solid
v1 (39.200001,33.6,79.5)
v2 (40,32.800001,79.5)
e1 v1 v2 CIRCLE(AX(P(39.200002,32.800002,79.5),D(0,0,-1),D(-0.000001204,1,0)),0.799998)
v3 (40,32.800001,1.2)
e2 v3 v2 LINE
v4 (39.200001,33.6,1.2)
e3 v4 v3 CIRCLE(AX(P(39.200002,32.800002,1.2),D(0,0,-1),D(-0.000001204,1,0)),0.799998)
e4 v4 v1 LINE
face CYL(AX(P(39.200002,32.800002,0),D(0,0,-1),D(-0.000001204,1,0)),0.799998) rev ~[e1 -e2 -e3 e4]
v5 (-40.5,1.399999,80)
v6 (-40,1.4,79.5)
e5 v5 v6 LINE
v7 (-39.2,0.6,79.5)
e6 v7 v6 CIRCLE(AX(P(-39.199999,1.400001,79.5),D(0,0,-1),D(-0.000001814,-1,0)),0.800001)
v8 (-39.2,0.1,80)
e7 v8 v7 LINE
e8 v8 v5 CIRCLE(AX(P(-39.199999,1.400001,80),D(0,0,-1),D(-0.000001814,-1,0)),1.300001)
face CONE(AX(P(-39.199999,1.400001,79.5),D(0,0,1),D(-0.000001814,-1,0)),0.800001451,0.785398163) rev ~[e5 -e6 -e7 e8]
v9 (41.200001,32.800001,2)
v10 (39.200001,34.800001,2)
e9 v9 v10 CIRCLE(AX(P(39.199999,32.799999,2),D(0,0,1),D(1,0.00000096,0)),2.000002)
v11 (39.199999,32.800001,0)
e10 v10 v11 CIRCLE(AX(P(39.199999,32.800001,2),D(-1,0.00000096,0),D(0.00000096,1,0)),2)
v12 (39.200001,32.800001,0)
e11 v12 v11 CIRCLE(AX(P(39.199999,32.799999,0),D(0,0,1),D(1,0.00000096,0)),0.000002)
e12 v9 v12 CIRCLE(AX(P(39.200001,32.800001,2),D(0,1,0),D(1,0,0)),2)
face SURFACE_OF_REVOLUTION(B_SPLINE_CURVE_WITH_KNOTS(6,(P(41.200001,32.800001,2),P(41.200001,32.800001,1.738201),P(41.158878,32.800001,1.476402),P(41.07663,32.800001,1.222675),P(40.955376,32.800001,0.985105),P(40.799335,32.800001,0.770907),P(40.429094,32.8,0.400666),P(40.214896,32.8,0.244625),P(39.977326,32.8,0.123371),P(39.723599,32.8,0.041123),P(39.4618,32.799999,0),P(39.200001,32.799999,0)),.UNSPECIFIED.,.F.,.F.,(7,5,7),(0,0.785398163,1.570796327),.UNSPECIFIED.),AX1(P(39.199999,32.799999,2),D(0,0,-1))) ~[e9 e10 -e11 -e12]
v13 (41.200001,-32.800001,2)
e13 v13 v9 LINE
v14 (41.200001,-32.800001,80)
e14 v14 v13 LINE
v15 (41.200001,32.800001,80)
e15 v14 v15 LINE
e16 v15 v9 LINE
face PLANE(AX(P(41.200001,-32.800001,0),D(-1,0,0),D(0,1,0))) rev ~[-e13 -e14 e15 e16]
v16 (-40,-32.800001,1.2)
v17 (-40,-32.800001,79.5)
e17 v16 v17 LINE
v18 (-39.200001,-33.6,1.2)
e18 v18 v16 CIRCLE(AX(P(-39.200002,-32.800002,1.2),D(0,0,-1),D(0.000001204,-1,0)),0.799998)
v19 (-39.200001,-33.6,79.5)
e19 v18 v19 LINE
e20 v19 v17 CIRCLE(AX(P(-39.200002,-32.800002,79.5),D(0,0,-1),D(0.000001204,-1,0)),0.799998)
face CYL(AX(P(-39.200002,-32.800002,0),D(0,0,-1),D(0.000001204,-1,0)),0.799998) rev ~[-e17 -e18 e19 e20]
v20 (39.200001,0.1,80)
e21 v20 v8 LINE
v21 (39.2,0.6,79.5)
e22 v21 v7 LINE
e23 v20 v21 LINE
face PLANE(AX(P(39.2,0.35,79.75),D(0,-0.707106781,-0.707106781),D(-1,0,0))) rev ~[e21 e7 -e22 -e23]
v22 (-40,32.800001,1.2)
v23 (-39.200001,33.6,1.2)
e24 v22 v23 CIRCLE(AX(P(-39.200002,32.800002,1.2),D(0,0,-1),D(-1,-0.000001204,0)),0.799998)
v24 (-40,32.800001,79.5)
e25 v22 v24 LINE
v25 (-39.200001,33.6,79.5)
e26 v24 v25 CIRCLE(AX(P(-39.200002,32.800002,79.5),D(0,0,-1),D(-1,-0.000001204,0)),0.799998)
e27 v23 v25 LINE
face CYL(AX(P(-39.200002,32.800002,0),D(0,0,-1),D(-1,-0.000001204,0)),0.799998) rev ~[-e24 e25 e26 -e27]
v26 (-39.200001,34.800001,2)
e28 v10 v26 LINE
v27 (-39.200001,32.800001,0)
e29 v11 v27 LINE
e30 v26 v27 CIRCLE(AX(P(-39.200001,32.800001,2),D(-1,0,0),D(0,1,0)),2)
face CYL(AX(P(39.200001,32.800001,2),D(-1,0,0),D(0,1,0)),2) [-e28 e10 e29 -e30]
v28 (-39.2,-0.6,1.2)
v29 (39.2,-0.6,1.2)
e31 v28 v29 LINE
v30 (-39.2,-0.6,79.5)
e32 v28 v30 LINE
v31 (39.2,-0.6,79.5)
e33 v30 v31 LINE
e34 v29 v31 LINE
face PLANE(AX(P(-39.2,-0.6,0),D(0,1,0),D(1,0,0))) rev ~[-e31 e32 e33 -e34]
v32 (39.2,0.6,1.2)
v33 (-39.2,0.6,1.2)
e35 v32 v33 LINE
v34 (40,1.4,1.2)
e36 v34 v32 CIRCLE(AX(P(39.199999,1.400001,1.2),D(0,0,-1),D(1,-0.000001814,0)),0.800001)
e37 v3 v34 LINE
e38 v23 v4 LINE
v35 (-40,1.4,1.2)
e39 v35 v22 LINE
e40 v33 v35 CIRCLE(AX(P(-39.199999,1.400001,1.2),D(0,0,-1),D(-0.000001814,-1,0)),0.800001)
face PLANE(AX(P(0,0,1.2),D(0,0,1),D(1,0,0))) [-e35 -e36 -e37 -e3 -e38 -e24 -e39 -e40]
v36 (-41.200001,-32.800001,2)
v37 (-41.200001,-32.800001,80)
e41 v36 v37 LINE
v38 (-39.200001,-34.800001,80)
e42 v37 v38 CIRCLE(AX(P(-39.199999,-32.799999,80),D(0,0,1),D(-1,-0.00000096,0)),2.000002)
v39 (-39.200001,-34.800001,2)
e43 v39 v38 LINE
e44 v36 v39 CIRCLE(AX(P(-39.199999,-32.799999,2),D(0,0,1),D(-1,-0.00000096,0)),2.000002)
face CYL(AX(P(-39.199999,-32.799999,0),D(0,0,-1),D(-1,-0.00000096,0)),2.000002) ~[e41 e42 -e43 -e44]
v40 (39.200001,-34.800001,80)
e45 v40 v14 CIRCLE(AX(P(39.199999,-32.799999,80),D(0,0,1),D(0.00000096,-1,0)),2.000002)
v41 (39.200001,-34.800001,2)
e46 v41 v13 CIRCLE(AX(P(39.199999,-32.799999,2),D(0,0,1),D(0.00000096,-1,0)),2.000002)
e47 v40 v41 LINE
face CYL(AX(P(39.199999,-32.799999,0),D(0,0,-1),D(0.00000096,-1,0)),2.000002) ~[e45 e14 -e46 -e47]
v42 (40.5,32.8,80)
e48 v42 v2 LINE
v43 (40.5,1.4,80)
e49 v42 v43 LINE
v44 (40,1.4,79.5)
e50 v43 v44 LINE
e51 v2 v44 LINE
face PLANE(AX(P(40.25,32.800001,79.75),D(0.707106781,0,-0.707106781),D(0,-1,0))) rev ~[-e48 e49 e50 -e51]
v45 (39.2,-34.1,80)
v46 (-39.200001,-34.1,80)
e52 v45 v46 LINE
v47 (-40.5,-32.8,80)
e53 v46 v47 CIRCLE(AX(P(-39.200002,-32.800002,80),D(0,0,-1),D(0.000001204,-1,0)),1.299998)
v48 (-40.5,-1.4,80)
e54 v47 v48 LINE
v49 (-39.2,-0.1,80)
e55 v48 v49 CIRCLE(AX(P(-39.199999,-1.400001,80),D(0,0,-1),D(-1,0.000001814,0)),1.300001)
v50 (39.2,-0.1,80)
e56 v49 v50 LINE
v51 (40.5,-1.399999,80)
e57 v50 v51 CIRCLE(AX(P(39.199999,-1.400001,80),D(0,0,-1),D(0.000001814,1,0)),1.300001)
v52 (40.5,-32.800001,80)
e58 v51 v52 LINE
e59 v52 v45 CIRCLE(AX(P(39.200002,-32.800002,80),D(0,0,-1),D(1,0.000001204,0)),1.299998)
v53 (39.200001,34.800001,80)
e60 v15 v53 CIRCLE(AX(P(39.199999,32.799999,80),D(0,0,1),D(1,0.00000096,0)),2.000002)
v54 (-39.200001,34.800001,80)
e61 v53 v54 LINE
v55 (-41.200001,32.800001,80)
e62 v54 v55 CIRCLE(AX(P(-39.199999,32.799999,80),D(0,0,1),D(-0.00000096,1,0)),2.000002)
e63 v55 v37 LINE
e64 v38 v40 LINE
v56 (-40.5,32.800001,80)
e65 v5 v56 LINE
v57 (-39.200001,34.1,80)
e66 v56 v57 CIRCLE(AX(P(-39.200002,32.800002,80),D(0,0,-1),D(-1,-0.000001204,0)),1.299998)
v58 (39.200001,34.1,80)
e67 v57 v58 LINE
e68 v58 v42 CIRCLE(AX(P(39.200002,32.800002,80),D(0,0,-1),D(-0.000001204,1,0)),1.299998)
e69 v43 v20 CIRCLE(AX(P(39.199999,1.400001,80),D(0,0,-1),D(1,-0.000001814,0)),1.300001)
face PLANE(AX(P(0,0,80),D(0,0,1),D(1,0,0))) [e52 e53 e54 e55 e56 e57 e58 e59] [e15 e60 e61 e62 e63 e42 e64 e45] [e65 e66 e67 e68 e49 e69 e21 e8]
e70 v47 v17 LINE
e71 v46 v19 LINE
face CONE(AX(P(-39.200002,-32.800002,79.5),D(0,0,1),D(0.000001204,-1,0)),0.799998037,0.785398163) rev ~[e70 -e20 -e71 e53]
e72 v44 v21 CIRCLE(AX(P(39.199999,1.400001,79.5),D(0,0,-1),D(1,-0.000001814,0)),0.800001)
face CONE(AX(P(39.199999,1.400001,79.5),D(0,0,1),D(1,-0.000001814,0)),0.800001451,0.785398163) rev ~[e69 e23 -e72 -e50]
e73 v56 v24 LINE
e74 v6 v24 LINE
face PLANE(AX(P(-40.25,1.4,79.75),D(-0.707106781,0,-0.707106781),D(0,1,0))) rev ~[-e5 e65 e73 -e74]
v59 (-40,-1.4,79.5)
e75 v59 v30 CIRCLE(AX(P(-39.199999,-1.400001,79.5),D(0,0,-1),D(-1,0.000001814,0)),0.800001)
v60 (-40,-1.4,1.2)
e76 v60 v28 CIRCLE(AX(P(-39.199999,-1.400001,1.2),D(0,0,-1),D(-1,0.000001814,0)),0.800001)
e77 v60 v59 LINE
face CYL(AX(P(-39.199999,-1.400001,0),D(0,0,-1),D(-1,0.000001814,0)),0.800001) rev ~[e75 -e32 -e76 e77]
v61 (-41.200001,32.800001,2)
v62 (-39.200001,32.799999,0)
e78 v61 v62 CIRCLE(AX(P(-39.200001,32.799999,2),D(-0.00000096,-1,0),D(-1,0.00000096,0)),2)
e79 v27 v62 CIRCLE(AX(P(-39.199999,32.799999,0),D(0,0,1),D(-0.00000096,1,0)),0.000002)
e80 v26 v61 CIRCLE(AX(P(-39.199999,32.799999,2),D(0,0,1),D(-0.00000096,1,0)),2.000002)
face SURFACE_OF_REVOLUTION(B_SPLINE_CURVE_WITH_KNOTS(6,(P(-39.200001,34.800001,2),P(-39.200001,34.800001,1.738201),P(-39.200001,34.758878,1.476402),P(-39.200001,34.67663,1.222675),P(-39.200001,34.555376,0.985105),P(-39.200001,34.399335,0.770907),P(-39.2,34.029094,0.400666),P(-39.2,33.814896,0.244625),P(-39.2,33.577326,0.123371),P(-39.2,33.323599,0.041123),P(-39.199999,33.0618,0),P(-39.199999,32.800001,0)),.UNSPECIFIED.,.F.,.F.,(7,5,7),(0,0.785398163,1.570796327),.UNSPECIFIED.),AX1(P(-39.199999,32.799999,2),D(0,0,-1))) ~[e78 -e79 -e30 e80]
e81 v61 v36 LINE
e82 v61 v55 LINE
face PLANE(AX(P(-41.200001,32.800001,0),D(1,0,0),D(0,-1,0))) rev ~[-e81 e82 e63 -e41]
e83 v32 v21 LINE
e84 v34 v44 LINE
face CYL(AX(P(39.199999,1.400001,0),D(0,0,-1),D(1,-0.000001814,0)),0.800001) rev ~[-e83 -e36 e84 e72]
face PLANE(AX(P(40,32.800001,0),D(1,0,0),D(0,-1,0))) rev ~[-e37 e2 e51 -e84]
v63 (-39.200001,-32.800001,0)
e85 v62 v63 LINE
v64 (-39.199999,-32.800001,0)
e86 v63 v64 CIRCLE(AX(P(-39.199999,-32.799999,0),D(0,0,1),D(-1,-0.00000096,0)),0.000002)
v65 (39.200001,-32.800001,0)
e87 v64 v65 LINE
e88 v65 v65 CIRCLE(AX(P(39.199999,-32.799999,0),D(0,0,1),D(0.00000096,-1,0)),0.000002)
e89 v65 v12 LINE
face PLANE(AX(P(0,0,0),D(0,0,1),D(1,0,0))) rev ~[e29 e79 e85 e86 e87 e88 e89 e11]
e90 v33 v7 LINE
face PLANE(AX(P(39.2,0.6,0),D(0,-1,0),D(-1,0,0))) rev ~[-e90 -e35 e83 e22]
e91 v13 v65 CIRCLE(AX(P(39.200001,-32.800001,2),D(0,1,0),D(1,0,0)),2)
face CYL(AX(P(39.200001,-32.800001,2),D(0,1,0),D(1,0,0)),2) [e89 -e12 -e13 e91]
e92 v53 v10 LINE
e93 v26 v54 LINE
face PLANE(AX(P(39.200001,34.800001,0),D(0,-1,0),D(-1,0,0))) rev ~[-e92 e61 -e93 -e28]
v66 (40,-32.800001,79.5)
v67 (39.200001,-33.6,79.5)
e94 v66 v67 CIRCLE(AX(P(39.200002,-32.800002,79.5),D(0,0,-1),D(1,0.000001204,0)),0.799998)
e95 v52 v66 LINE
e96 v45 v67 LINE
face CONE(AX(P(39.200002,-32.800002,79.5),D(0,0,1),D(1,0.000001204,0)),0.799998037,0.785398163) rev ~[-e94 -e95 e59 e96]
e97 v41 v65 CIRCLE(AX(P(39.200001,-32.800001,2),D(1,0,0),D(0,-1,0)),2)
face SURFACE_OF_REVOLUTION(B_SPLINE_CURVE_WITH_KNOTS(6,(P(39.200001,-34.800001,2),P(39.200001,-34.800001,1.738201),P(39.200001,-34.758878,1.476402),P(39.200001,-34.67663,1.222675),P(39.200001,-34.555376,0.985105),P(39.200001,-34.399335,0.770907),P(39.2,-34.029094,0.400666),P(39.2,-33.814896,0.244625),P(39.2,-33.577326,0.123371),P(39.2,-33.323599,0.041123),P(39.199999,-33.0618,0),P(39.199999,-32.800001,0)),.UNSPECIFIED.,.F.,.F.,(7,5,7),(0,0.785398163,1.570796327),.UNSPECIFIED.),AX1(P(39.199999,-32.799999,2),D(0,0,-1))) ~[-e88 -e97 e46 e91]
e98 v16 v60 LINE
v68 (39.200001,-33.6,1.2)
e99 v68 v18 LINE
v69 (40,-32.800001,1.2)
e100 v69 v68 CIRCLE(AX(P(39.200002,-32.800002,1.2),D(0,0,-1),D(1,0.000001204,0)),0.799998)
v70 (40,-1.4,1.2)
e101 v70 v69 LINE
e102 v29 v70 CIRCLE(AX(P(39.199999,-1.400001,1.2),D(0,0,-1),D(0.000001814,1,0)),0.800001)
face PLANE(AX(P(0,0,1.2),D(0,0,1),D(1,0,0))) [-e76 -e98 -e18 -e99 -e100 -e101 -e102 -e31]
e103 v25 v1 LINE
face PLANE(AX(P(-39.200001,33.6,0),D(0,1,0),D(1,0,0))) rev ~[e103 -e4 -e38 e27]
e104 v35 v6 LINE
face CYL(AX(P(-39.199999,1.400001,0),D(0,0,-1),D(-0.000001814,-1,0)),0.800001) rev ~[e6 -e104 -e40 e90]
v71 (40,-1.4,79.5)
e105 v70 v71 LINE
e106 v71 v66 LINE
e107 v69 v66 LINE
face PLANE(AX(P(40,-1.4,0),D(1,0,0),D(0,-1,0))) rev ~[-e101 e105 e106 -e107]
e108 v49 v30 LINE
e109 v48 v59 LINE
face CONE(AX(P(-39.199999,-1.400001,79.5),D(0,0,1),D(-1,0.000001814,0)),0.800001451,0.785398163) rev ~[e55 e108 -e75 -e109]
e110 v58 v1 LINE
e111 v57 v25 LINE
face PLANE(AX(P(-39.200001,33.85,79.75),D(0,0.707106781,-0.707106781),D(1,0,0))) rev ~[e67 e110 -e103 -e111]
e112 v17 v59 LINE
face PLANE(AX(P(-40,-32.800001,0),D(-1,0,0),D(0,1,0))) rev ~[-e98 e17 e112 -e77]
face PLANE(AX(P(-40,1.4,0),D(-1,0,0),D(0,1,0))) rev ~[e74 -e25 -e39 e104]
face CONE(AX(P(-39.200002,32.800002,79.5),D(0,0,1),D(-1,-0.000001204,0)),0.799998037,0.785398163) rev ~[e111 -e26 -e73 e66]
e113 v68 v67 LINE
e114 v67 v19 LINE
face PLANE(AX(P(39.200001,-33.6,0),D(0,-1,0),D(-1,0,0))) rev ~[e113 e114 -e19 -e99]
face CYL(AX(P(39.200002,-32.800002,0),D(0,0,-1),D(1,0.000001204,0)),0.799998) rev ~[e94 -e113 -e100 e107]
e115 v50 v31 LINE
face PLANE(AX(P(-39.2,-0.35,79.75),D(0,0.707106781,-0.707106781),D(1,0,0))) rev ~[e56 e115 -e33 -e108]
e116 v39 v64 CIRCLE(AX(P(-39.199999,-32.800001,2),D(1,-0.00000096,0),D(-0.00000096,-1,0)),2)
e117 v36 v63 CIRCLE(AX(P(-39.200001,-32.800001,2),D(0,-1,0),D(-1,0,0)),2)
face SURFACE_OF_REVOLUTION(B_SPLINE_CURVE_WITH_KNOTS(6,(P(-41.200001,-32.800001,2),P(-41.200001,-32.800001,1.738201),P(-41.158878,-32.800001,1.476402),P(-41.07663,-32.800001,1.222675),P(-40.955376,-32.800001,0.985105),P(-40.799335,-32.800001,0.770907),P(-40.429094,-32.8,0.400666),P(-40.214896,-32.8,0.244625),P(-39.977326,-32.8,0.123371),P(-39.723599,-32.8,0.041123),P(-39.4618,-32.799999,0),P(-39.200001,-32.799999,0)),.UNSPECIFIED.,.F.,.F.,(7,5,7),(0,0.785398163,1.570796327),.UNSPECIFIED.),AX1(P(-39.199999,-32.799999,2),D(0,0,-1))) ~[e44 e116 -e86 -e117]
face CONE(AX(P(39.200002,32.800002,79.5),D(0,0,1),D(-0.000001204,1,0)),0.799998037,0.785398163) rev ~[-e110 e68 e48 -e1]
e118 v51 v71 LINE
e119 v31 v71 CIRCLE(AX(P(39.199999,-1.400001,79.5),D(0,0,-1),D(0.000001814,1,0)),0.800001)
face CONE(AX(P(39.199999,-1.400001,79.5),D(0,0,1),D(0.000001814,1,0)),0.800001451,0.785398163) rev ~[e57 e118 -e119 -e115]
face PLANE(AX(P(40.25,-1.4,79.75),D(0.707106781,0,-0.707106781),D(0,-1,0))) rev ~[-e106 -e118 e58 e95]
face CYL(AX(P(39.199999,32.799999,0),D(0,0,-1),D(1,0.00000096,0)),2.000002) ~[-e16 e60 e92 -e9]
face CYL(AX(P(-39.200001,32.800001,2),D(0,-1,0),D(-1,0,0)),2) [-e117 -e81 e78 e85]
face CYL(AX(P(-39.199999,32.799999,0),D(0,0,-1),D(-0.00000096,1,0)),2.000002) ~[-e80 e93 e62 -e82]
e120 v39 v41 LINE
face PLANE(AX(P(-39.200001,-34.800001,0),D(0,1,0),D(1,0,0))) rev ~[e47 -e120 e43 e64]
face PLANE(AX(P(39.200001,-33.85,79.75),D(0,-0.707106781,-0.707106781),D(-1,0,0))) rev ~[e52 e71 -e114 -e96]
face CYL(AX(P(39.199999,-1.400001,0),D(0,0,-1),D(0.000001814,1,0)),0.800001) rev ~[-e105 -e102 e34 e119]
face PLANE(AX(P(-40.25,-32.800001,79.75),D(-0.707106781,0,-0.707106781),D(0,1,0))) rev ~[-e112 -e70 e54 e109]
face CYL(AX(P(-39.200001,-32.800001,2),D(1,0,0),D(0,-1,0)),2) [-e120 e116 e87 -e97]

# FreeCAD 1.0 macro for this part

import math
import FreeCAD as App
import Part
import Sketcher
from FreeCAD import Vector


def edges_at(feature, points):
    """Names of the edges that pass closest to the given points."""
    edges = feature.Shape.Edges
    near = lambda p: min(range(len(edges)), key=lambda i: edges[i].distToShape(Part.Vertex(*p))[0])
    return sorted({f"Edge{near(p) + 1}" for p in points})

doc = App.newDocument("Part")
body = doc.addObject("PartDesign::Body", "Body")

# Sketch on XY plane
sketch1 = body.newObject("Sketcher::SketchObject", "Sketch")
sketch1.AttachmentSupport = (doc.getObject("XY_Plane"), [""])
sketch1.MapMode = "FlatFace"
sketch1.addGeometry([
    Part.LineSegment(Vector(39.2, 34.8, 0), Vector(-39.2, 34.8, 0)),  # 0
    Part.ArcOfCircle(Part.Circle(Vector(-39.2, 32.8, 0), Vector(0, 0, 1), 2), math.radians(90), math.radians(180)),  # 1
    Part.LineSegment(Vector(-41.2, 32.8, 0), Vector(-41.2, -32.8, 0)),  # 2
    Part.ArcOfCircle(Part.Circle(Vector(-39.2, -32.8, 0), Vector(0, 0, 1), 2), math.radians(-180), math.radians(-90)),  # 3
    Part.LineSegment(Vector(-39.2, -34.8, 0), Vector(39.2, -34.8, 0)),  # 4
    Part.ArcOfCircle(Part.Circle(Vector(39.2, -32.8, 0), Vector(0, 0, 1), 2), math.radians(-90), math.radians(0)),  # 5
    Part.LineSegment(Vector(41.2, -32.8, 0), Vector(41.2, 32.8, 0)),  # 6
    Part.ArcOfCircle(Part.Circle(Vector(39.2, 32.8, 0), Vector(0, 0, 1), 2), math.radians(0), math.radians(90)),  # 7
    Part.LineSegment(Vector(39.2, -33.6, 0), Vector(-39.2, -33.6, 0)),  # 8
    Part.ArcOfCircle(Part.Circle(Vector(-39.2, -32.8, 0), Vector(0, 0, 1), 0.8), math.radians(180), math.radians(270)),  # 9
    Part.LineSegment(Vector(-40, -32.8, 0), Vector(-40, -1.4, 0)),  # 10
    Part.ArcOfCircle(Part.Circle(Vector(-39.2, -1.4, 0), Vector(0, 0, 1), 0.8), math.radians(90), math.radians(180)),  # 11
    Part.LineSegment(Vector(-39.2, -0.6, 0), Vector(39.2, -0.6, 0)),  # 12
    Part.ArcOfCircle(Part.Circle(Vector(39.2, -1.4, 0), Vector(0, 0, 1), 0.8), math.radians(0), math.radians(90)),  # 13
    Part.LineSegment(Vector(40, -1.4, 0), Vector(40, -32.8, 0)),  # 14
    Part.ArcOfCircle(Part.Circle(Vector(39.2, -32.8, 0), Vector(0, 0, 1), 0.8), math.radians(-90), math.radians(0)),  # 15
    Part.LineSegment(Vector(-40, 1.4, 0), Vector(-40, 32.8, 0)),  # 16
    Part.ArcOfCircle(Part.Circle(Vector(-39.2, 32.8, 0), Vector(0, 0, 1), 0.8), math.radians(90), math.radians(180)),  # 17
    Part.LineSegment(Vector(-39.2, 33.6, 0), Vector(39.2, 33.6, 0)),  # 18
    Part.ArcOfCircle(Part.Circle(Vector(39.2, 32.8, 0), Vector(0, 0, 1), 0.8), math.radians(0), math.radians(90)),  # 19
    Part.LineSegment(Vector(40, 32.8, 0), Vector(40, 1.4, 0)),  # 20
    Part.ArcOfCircle(Part.Circle(Vector(39.2, 1.4, 0), Vector(0, 0, 1), 0.8), math.radians(-90), math.radians(0)),  # 21
    Part.LineSegment(Vector(39.2, 0.6, 0), Vector(-39.2, 0.6, 0)),  # 22
    Part.ArcOfCircle(Part.Circle(Vector(-39.2, 1.4, 0), Vector(0, 0, 1), 0.8), math.radians(-180), math.radians(-90)),  # 23
], False)
sketch1.addConstraint([
    Sketcher.Constraint("Tangent", 0, 2, 1, 1),
    Sketcher.Constraint("Tangent", 1, 2, 2, 1),
    Sketcher.Constraint("Tangent", 2, 2, 3, 1),
    Sketcher.Constraint("Tangent", 3, 2, 4, 1),
    Sketcher.Constraint("Tangent", 4, 2, 5, 1),
    Sketcher.Constraint("Tangent", 5, 2, 6, 1),
    Sketcher.Constraint("Tangent", 6, 2, 7, 1),
    Sketcher.Constraint("Tangent", 7, 2, 0, 1),
    Sketcher.Constraint("Tangent", 8, 2, 9, 2),
    Sketcher.Constraint("Tangent", 9, 1, 10, 1),
    Sketcher.Constraint("Tangent", 10, 2, 11, 2),
    Sketcher.Constraint("Tangent", 11, 1, 12, 1),
    Sketcher.Constraint("Tangent", 12, 2, 13, 2),
    Sketcher.Constraint("Tangent", 13, 1, 14, 1),
    Sketcher.Constraint("Tangent", 14, 2, 15, 2),
    Sketcher.Constraint("Tangent", 15, 1, 8, 1),
    Sketcher.Constraint("Tangent", 16, 2, 17, 2),
    Sketcher.Constraint("Tangent", 17, 1, 18, 1),
    Sketcher.Constraint("Tangent", 18, 2, 19, 2),
    Sketcher.Constraint("Tangent", 19, 1, 20, 1),
    Sketcher.Constraint("Tangent", 20, 2, 21, 2),
    Sketcher.Constraint("Tangent", 21, 1, 22, 1),
    Sketcher.Constraint("Tangent", 22, 2, 23, 2),
    Sketcher.Constraint("Tangent", 23, 1, 16, 1),
    Sketcher.Constraint("Horizontal", 0),
    Sketcher.Constraint("Vertical", 2),
    Sketcher.Constraint("Horizontal", 4),
    Sketcher.Constraint("Vertical", 6),
    Sketcher.Constraint("Horizontal", 8),
    Sketcher.Constraint("Vertical", 10),
    Sketcher.Constraint("Horizontal", 12),
    Sketcher.Constraint("Vertical", 14),
    Sketcher.Constraint("Vertical", 16),
    Sketcher.Constraint("Horizontal", 18),
    Sketcher.Constraint("Vertical", 20),
    Sketcher.Constraint("Horizontal", 22),
    Sketcher.Constraint("Coincident", 9, 3, 3, 3),
    Sketcher.Constraint("Coincident", 15, 3, 5, 3),
    Sketcher.Constraint("Coincident", 17, 3, 1, 3),
    Sketcher.Constraint("Coincident", 19, 3, 7, 3),
    Sketcher.Constraint("Equal", 1, 3),
    Sketcher.Constraint("Equal", 3, 5),
    Sketcher.Constraint("Equal", 5, 7),
    Sketcher.Constraint("Equal", 11, 13),
    Sketcher.Constraint("Equal", 15, 17),
    Sketcher.Constraint("Equal", 13, 21),
    Sketcher.Constraint("Equal", 21, 23),
    Sketcher.Constraint("Symmetric", 1, 3, 5, 3, -1, 1),
    Sketcher.Constraint("Vertical", 3, 3, 11, 3),
    Sketcher.Constraint("Equal", 14, 16),
    Sketcher.Constraint("Radius", 1, 2.000002),
    Sketcher.Constraint("Radius", 9, 0.799998),
    Sketcher.Constraint("DistanceX", 0, 2, 0, 1, 78.400002),
    Sketcher.Constraint("DistanceY", 10, 1, 10, 2, 31.400001),
    Sketcher.Constraint("DistanceY", 11, 1, 23, 3, 2.000001),
])
pad1 = body.newObject("PartDesign::Pad", "Pad")
pad1.Profile = sketch1
pad1.Length = 80

# Sketch on XY plane
sketch2 = body.newObject("Sketcher::SketchObject", "Sketch001")
sketch2.AttachmentSupport = (doc.getObject("XY_Plane"), [""])
sketch2.MapMode = "FlatFace"
sketch2.addGeometry([
    Part.ArcOfCircle(Part.Circle(Vector(-39.2, 32.8, 0), Vector(0, 0, 1), 2), math.radians(90), math.radians(180)),  # 0
    Part.LineSegment(Vector(-41.2, 32.8, 0), Vector(-41.2, -32.8, 0)),  # 1
    Part.ArcOfCircle(Part.Circle(Vector(-39.2, -32.8, 0), Vector(0, 0, 1), 2), math.radians(-180), math.radians(-90)),  # 2
    Part.LineSegment(Vector(-39.2, -34.8, 0), Vector(39.2, -34.8, 0)),  # 3
    Part.ArcOfCircle(Part.Circle(Vector(39.2, -32.8, 0), Vector(0, 0, 1), 2), math.radians(-90), math.radians(0)),  # 4
    Part.LineSegment(Vector(41.2, -32.8, 0), Vector(41.2, 32.8, 0)),  # 5
    Part.ArcOfCircle(Part.Circle(Vector(39.2, 32.8, 0), Vector(0, 0, 1), 2), math.radians(0), math.radians(90)),  # 6
    Part.LineSegment(Vector(39.2, 34.8, 0), Vector(-39.2, 34.8, 0)),  # 7
], False)
sketch2.addConstraint([
    Sketcher.Constraint("Tangent", 0, 2, 1, 1),
    Sketcher.Constraint("Tangent", 1, 2, 2, 1),
    Sketcher.Constraint("Tangent", 2, 2, 3, 1),
    Sketcher.Constraint("Tangent", 3, 2, 4, 1),
    Sketcher.Constraint("Tangent", 4, 2, 5, 1),
    Sketcher.Constraint("Tangent", 5, 2, 6, 1),
    Sketcher.Constraint("Tangent", 6, 2, 7, 1),
    Sketcher.Constraint("Tangent", 7, 2, 0, 1),
    Sketcher.Constraint("Vertical", 1),
    Sketcher.Constraint("Horizontal", 3),
    Sketcher.Constraint("Vertical", 5),
    Sketcher.Constraint("Horizontal", 7),
    Sketcher.Constraint("Equal", 0, 2),
    Sketcher.Constraint("Equal", 2, 4),
    Sketcher.Constraint("Equal", 4, 6),
    Sketcher.Constraint("Symmetric", 0, 3, 4, 3, -1, 1),
    Sketcher.Constraint("Radius", 0, 2.000002),
    Sketcher.Constraint("DistanceX", 3, 1, 3, 2, 78.400002),
    Sketcher.Constraint("DistanceY", -1, 1, 0, 3, 32.799999),
])
pad2 = body.newObject("PartDesign::Pad", "Pad001")
pad2.Profile = sketch2
pad2.Length = 1.2
doc.recompute()

fillet = body.newObject("PartDesign::Fillet", "Fillet")
fillet.Base = (pad2, edges_at(pad2, [
    (41.2, 0, 0),
    (0, 34.8, 0),
    (0, -34.8, 0),
    (-41.2, 0, 0),
]))
fillet.Radius = 2
doc.recompute()

chamfer = body.newObject("PartDesign::Chamfer", "Chamfer")
chamfer.Base = (fillet, edges_at(fillet, [(0, 33.6, 80), (0, -0.6, 80)]))
chamfer.Size = 0.5

doc.recompute()
